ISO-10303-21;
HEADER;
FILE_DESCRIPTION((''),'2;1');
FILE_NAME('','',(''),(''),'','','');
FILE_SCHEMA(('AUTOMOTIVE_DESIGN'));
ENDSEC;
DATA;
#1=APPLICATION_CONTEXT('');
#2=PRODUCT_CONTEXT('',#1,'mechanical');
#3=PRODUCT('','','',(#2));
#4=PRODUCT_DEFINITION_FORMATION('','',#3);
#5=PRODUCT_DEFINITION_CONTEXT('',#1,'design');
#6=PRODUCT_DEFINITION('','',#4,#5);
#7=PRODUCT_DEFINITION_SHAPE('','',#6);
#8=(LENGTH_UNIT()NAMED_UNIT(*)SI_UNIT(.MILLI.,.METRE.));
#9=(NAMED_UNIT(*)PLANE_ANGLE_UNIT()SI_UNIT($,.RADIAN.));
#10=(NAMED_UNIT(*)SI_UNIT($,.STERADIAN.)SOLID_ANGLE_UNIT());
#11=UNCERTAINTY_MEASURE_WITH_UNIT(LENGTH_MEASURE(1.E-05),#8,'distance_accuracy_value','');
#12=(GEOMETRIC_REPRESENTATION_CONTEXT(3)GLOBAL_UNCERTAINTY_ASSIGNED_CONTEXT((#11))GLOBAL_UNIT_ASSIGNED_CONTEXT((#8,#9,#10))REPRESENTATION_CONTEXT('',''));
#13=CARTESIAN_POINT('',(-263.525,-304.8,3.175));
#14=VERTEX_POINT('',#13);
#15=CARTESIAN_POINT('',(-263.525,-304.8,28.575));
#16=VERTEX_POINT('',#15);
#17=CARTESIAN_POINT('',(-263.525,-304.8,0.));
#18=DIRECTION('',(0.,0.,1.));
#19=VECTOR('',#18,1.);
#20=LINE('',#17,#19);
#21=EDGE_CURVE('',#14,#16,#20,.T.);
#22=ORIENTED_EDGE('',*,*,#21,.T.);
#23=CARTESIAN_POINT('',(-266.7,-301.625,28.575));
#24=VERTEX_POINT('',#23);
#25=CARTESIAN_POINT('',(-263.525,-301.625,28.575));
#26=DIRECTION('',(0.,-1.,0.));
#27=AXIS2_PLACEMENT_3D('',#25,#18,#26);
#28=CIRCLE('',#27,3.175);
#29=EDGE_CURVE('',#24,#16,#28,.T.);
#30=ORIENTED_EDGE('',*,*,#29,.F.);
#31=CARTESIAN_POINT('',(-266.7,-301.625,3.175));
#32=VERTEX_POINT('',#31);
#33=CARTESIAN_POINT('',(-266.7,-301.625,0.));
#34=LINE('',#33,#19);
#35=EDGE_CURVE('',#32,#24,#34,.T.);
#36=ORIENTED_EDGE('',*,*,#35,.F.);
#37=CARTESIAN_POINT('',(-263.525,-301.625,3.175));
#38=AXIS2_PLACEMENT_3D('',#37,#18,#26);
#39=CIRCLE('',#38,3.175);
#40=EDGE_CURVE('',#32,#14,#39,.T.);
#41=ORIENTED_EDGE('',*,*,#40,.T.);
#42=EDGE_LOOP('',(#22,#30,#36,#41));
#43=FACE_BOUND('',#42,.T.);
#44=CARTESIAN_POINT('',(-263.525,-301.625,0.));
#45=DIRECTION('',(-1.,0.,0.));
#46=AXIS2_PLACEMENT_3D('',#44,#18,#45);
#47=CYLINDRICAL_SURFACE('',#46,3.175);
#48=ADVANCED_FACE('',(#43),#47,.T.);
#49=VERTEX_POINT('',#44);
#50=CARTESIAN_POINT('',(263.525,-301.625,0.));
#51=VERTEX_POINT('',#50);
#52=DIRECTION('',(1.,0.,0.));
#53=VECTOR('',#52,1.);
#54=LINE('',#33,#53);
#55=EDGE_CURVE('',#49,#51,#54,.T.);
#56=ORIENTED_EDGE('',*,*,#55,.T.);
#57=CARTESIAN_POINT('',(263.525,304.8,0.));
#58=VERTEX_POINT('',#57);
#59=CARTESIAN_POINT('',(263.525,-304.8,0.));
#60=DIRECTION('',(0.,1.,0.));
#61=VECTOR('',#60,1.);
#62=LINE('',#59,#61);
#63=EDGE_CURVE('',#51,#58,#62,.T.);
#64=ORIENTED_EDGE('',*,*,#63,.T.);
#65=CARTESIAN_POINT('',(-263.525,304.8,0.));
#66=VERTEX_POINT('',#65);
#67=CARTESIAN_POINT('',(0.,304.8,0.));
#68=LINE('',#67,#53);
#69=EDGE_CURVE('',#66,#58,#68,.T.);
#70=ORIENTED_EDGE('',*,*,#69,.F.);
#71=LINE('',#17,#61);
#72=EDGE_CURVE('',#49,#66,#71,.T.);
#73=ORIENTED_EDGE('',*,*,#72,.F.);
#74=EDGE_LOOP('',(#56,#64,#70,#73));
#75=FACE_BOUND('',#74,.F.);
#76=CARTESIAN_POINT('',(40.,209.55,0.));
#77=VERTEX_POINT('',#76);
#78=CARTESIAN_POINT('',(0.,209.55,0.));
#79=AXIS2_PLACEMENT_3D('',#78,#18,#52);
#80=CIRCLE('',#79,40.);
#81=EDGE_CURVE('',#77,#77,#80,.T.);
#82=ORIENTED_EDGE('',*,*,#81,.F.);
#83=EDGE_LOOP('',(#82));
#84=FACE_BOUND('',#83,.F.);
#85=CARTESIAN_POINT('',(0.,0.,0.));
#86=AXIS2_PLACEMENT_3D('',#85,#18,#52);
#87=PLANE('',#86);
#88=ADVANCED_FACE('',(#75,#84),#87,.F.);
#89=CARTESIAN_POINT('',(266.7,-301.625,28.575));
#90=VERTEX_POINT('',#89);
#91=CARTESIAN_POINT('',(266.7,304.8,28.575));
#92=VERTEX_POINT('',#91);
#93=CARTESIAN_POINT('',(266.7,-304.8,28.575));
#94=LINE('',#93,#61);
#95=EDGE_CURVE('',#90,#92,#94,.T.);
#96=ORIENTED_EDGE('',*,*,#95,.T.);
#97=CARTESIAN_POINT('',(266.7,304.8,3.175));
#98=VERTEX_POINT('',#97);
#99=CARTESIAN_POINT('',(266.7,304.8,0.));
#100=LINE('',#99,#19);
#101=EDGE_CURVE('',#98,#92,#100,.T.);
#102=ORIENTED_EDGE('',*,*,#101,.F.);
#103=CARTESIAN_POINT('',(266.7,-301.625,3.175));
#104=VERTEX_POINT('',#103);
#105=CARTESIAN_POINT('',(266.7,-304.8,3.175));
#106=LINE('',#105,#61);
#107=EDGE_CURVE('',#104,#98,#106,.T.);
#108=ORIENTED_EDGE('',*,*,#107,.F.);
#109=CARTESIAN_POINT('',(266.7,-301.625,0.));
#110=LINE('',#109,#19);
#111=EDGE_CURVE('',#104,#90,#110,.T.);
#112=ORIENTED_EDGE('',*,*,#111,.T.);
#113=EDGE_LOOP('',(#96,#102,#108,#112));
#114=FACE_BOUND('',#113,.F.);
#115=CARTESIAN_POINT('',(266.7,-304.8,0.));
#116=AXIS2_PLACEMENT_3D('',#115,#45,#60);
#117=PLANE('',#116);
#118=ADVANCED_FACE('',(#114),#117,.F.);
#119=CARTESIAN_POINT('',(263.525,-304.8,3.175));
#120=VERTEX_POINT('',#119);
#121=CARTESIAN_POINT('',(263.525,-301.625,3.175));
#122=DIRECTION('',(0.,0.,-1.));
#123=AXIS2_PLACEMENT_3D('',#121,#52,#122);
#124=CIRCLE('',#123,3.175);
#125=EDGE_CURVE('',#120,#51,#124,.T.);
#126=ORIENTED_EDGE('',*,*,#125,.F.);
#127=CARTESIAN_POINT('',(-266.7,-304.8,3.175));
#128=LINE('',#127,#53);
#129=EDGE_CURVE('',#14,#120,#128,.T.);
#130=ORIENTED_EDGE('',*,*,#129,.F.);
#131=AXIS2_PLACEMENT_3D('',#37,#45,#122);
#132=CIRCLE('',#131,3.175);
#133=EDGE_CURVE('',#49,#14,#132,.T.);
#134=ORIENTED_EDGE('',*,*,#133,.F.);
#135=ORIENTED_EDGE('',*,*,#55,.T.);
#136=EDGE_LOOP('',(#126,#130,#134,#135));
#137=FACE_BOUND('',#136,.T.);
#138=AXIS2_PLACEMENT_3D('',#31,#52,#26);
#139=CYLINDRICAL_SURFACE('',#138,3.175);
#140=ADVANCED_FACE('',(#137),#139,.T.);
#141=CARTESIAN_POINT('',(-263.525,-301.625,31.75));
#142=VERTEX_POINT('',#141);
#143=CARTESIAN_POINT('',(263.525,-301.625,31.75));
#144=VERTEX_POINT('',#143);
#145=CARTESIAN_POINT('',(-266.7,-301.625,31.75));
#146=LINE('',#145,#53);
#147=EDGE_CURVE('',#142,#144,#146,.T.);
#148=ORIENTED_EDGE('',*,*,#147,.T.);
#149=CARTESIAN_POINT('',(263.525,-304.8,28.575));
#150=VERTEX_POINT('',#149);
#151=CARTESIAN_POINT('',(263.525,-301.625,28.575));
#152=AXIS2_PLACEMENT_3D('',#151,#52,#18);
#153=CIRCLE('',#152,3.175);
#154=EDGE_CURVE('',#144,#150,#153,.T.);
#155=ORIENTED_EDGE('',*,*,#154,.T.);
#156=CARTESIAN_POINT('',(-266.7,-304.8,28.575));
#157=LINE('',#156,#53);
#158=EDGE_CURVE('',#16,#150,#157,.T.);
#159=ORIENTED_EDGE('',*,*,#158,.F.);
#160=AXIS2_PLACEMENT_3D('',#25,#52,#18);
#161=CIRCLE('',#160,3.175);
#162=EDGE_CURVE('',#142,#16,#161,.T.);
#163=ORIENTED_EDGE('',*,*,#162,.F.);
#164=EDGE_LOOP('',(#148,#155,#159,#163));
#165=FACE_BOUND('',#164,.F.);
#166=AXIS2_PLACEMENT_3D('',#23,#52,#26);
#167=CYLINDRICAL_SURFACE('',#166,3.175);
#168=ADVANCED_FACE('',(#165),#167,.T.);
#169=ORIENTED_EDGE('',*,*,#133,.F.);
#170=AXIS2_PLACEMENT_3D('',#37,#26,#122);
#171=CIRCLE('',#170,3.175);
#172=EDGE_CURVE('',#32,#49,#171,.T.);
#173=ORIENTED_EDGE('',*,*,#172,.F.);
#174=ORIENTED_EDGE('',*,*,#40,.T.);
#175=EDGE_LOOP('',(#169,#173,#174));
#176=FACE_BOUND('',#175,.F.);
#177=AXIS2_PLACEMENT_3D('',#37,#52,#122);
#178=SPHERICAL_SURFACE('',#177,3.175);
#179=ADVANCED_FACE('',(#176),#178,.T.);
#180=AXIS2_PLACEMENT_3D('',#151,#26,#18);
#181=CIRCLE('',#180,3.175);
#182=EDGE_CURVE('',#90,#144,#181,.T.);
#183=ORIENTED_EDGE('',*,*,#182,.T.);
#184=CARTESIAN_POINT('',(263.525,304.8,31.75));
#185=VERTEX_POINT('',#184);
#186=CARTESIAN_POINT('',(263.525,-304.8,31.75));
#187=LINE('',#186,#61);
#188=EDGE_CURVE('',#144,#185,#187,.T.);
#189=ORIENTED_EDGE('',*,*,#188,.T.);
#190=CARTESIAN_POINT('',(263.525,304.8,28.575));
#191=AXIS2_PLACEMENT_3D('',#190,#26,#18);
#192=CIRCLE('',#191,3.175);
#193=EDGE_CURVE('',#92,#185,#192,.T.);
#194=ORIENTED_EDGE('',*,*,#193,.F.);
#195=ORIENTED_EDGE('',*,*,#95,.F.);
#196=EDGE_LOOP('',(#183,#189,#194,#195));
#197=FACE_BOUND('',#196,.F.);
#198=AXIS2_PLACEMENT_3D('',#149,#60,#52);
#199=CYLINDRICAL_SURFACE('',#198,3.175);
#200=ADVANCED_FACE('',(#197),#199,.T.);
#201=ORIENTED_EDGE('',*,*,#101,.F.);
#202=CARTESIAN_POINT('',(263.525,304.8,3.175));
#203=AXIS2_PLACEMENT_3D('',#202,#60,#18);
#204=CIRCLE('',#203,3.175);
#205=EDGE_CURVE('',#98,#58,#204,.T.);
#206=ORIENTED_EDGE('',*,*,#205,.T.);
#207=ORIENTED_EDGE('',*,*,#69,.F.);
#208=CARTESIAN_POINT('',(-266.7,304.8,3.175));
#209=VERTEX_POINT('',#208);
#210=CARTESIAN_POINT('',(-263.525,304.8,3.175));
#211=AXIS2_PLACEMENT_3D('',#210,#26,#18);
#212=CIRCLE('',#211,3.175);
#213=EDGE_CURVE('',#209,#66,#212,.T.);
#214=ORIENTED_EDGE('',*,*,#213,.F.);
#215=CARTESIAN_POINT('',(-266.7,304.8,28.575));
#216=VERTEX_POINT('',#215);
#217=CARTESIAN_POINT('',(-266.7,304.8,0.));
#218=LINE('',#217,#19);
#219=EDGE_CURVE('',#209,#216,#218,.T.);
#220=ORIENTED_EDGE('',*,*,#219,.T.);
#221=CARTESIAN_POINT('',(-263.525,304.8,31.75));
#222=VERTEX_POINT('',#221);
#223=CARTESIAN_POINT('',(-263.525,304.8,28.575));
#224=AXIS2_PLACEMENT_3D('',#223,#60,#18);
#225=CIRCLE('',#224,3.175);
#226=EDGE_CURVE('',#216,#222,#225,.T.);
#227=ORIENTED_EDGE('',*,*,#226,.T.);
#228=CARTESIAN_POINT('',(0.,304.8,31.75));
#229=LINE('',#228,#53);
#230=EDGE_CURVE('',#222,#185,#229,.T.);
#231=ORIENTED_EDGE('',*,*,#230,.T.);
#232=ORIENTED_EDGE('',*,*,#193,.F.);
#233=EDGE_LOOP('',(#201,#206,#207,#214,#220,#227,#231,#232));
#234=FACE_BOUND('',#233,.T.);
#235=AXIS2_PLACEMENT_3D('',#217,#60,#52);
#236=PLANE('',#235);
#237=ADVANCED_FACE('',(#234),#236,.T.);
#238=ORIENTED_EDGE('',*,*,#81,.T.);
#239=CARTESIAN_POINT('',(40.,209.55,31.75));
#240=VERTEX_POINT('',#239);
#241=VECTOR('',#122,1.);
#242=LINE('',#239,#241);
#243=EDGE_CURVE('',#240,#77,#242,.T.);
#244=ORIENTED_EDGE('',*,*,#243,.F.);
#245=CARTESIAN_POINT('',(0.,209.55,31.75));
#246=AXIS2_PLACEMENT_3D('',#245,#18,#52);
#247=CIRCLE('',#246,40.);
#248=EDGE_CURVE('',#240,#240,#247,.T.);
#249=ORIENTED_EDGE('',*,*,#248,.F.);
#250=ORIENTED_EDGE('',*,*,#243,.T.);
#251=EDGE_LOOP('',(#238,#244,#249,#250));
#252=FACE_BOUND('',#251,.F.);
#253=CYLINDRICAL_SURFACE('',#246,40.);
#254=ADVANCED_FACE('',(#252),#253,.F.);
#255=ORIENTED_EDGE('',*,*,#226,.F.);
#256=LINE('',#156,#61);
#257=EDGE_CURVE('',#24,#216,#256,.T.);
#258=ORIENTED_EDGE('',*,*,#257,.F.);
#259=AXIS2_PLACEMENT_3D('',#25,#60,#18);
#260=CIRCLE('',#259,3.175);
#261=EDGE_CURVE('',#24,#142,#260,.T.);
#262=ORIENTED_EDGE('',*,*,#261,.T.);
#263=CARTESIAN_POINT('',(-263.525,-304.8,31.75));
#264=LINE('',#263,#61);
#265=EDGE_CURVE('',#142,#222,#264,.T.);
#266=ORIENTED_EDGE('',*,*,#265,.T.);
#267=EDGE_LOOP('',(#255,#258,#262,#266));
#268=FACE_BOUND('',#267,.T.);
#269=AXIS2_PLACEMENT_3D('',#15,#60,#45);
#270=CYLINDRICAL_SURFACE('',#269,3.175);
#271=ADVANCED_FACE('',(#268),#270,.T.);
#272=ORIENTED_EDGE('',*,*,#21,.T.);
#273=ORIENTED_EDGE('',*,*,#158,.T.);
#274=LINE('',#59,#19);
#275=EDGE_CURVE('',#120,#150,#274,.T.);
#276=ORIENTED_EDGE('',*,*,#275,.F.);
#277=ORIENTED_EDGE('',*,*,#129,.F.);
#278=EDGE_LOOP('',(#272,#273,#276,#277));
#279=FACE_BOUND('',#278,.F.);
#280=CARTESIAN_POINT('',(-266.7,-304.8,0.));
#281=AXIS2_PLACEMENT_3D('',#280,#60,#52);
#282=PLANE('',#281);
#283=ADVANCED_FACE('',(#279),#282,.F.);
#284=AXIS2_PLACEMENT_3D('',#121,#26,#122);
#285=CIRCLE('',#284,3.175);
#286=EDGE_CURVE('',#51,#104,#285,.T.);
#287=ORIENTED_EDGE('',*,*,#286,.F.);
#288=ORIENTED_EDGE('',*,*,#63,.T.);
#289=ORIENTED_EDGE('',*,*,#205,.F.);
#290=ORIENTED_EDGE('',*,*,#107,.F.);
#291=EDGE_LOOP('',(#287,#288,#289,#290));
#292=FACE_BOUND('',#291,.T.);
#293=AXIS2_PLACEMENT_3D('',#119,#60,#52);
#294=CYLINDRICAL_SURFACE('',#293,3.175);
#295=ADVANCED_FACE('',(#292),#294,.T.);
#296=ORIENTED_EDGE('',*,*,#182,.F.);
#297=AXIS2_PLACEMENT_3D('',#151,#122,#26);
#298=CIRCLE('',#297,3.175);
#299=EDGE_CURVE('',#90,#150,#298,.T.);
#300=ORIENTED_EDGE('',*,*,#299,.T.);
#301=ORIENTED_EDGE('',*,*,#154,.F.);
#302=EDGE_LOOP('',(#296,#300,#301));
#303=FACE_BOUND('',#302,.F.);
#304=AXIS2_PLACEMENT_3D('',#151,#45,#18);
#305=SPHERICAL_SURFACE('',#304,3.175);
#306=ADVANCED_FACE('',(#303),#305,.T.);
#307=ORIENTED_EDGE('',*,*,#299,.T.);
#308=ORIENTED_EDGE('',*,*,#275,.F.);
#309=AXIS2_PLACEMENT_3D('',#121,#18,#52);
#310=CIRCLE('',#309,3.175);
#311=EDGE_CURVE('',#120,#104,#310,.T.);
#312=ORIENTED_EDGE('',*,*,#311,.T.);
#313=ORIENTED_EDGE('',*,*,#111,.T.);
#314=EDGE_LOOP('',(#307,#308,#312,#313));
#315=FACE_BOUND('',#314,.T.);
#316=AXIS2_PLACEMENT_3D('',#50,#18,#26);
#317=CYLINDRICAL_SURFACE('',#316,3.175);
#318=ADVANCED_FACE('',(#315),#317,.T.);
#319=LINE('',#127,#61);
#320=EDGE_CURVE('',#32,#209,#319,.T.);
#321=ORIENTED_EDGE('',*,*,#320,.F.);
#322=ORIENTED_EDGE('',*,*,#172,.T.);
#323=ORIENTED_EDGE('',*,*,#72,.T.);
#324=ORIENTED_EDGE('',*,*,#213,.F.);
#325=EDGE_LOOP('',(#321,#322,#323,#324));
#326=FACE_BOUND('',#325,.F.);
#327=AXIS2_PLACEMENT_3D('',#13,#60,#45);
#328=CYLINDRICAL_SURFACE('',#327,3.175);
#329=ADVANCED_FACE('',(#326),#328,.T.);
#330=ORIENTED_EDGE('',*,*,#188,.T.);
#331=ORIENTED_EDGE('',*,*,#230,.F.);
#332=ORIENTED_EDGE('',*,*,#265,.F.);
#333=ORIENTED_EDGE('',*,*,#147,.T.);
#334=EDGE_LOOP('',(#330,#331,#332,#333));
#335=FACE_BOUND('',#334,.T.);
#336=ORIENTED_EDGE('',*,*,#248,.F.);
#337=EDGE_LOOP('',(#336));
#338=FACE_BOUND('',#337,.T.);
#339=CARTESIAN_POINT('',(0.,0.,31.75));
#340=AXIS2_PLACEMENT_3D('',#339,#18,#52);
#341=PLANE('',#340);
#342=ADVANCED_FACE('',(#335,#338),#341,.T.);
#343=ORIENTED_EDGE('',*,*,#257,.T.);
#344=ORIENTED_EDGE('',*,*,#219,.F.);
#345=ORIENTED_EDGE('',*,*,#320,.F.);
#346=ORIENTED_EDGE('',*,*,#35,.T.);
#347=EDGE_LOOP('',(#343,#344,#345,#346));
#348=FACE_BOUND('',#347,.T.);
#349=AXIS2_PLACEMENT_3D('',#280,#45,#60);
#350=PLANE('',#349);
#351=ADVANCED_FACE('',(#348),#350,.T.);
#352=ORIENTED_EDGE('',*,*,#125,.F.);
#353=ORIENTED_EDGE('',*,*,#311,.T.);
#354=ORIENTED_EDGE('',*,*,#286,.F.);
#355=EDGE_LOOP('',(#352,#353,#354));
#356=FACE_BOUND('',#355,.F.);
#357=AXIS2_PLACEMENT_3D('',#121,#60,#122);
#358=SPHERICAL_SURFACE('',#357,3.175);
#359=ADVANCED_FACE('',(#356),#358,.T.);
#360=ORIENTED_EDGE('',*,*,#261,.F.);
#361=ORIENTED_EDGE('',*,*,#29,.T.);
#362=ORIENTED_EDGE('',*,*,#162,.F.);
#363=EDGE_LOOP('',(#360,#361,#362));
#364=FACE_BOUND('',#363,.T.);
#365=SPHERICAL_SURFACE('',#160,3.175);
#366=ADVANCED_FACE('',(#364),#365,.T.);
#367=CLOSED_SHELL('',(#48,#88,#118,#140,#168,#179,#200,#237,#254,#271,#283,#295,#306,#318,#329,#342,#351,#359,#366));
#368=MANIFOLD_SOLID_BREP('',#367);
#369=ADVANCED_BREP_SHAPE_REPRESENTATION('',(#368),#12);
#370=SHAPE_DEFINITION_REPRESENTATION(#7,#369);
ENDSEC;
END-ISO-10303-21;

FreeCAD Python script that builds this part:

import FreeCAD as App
import Part
import Sketcher
from FreeCAD import Vector
Q = App.Units.Quantity


def edges_at(feature, points):
    """Names of the edges that pass closest to the given points."""
    edges = feature.Shape.Edges
    near = lambda p: min(range(len(edges)), key=lambda i: edges[i].distToShape(Part.Vertex(*p))[0])
    return sorted({f"Edge{near(p) + 1}" for p in points})

doc = App.newDocument("Part")
params = doc.addObject("Spreadsheet::Sheet", "Params")
for row, (alias, value) in enumerate([
    ("sketch1_width", "21 in"),
    ("sketch1_height", "24 in"),
    ("pad1_length", "1.25 in"),
    ("fillet_radius", "0.125 in"),
], start=1):
    params.set(f"A{row}", alias)
    params.set(f"B{row}", "=" + value)
    params.setAlias(f"B{row}", alias)

body = doc.addObject("PartDesign::Body", "Body")

sketch1 = body.newObject("Sketcher::SketchObject", "Sketch")
sketch1.AttachmentSupport = (doc.getObject("XY_Plane"), [""])
sketch1.MapMode = "FlatFace"
sketch1.addGeometry([
    Part.LineSegment(Vector(-267, 305, 0), Vector(-267, -305, 0)),
    Part.LineSegment(Vector(-267, -305, 0), Vector(267, -305, 0)),
    Part.LineSegment(Vector(267, -305, 0), Vector(267, 305, 0)),
    Part.LineSegment(Vector(267, 305, 0), Vector(-267, 305, 0)),
], False)
sketch1.addConstraint([
    Sketcher.Constraint("Coincident", 0, 2, 1, 1),
    Sketcher.Constraint("Coincident", 1, 2, 2, 1),
    Sketcher.Constraint("Coincident", 2, 2, 3, 1),
    Sketcher.Constraint("Coincident", 3, 2, 0, 1),
    Sketcher.Constraint("Vertical", 0),
    Sketcher.Constraint("Horizontal", 1),
    Sketcher.Constraint("Vertical", 2),
    Sketcher.Constraint("Horizontal", 3),
    Sketcher.Constraint("Symmetric", 0, 2, 2, 2, -1, 1),
    Sketcher.Constraint("DistanceX", 1, 1, 1, 2, Q("21 in")),
    Sketcher.Constraint("DistanceY", 0, 2, 0, 1, Q("24 in")),
])
sketch1.setExpression("Constraints[9]", "Params.sketch1_width")
sketch1.setExpression("Constraints[10]", "Params.sketch1_height")
pad1 = body.newObject("PartDesign::Pad", "Pad")
pad1.Profile = sketch1
pad1.setExpression("Length", "Params.pad1_length")
doc.recompute()

fillet = body.newObject("PartDesign::Fillet", "Fillet")
fillet.Base = (pad1, edges_at(pad1, [
    (0, -304.8, 31.75),
    (-266.7, 0, 31.75),
    (266.7, 0, 31.75),
    (266.7, 0, 0),
    (0, -304.8, 0),
    (-266.7, 0, 0),
    (-266.7, -304.8, 15.875),
    (266.7, -304.8, 15.875),
]))
fillet.setExpression("Radius", "Params.fillet_radius")

sketch2 = body.newObject("Sketcher::SketchObject", "Sketch001")
sketch2.AttachmentSupport = (doc.getObject("XY_Plane"), [""])
sketch2.MapMode = "FlatFace"
sketch2.AttachmentOffset = App.Placement(Vector(0, 0, 1.25 * 25.4), App.Rotation())
sketch2.addGeometry(Part.Circle(Vector(0, 210, 0), Vector(0, 0, 1), 40), False)
sketch2.addConstraint([
    Sketcher.Constraint("PointOnObject", 0, 3, -2),
    Sketcher.Constraint("Diameter", 0, Q("80 mm")),
    Sketcher.Constraint("DistanceY", -1, 1, 0, 3, Q("8.25 in")),
])
pocket1 = body.newObject("PartDesign::Pocket", "Pocket")
pocket1.Profile = sketch2
pocket1.Type = "ThroughAll"

doc.recompute()
